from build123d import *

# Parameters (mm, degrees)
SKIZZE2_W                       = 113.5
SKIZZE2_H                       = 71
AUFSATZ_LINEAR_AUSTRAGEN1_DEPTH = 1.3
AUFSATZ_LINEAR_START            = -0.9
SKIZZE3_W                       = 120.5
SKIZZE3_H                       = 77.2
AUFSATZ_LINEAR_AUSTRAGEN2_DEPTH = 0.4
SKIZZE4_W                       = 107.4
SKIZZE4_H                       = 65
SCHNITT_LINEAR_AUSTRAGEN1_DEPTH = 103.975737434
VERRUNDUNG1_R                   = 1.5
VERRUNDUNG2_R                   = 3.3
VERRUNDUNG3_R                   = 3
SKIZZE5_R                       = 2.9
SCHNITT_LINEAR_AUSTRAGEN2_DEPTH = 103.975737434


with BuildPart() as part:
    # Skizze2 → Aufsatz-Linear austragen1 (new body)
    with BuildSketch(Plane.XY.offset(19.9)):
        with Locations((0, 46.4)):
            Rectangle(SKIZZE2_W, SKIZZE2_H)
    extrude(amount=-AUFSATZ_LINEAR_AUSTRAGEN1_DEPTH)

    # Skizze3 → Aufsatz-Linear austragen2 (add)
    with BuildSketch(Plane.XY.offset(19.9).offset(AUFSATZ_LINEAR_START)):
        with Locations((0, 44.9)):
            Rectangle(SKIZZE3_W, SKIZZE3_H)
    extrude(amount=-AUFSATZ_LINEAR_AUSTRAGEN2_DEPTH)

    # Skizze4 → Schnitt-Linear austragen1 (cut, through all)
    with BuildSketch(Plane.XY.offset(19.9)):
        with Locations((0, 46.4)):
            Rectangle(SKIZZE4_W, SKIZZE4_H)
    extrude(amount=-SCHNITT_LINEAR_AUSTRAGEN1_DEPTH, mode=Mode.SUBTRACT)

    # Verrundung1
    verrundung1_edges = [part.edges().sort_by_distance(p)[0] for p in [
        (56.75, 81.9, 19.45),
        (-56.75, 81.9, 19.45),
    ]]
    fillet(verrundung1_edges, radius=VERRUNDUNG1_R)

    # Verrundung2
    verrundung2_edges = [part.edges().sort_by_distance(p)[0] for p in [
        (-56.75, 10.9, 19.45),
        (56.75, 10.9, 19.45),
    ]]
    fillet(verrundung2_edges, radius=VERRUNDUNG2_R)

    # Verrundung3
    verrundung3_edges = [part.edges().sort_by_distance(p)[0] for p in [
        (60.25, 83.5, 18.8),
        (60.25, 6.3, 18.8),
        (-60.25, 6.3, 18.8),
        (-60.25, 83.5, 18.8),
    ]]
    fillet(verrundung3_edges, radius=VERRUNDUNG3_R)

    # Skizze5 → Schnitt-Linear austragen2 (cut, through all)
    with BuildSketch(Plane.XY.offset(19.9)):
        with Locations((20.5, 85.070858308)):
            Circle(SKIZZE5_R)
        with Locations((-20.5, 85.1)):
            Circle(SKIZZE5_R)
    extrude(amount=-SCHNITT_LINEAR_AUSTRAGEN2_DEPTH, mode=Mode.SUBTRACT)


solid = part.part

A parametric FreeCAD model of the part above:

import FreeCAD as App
import Part
import Sketcher
from FreeCAD import Vector


def edges_at(feature, points):
    """Names of the edges that pass closest to the given points."""
    edges = feature.Shape.Edges
    near = lambda p: min(range(len(edges)), key=lambda i: edges[i].distToShape(Part.Vertex(*p))[0])
    return sorted({f"Edge{near(p) + 1}" for p in points})

doc = App.newDocument("Part")
body = doc.addObject("PartDesign::Body", "Body")

# Sketch on XY plane
sketch1 = body.newObject("Sketcher::SketchObject", "Sketch")
sketch1.AttachmentSupport = (doc.getObject("XY_Plane"), [""])
sketch1.MapMode = "FlatFace"
sketch1.AttachmentOffset = App.Placement(Vector(0, 0, 19.9), App.Rotation())
sketch1.addGeometry([
    Part.LineSegment(Vector(-57, 82, 0), Vector(-57, 11, 0)),
    Part.LineSegment(Vector(-57, 11, 0), Vector(57, 11, 0)),
    Part.LineSegment(Vector(57, 11, 0), Vector(57, 82, 0)),
    Part.LineSegment(Vector(57, 82, 0), Vector(-57, 82, 0)),
], False)
sketch1.addConstraint([
    Sketcher.Constraint("Coincident", 0, 2, 1, 1),
    Sketcher.Constraint("Coincident", 1, 2, 2, 1),
    Sketcher.Constraint("Coincident", 2, 2, 3, 1),
    Sketcher.Constraint("Coincident", 3, 2, 0, 1),
    Sketcher.Constraint("Vertical", 0),
    Sketcher.Constraint("Horizontal", 1),
    Sketcher.Constraint("Vertical", 2),
    Sketcher.Constraint("Horizontal", 3),
    Sketcher.Constraint("DistanceY", 0, 2, 0, 1, 71.0),
    Sketcher.Constraint("DistanceX", 1, 1, 1, 2, 113.5),
    Sketcher.Constraint("DistanceY", -1, 1, 0, 2, 10.9),
    Sketcher.Constraint("DistanceX", 0, 2, -1, 1, 56.75),
])
pad1 = body.newObject("PartDesign::Pad", "Pad")
pad1.Profile = sketch1
pad1.Length = 1.3
pad1.Reversed = True

# Sketch on XY plane
sketch2 = body.newObject("Sketcher::SketchObject", "Sketch001")
sketch2.AttachmentSupport = (doc.getObject("XY_Plane"), [""])
sketch2.MapMode = "FlatFace"
sketch2.AttachmentOffset = App.Placement(Vector(0, 0, 19), App.Rotation())
sketch2.addGeometry([
    Part.LineSegment(Vector(-60, 84, 0), Vector(-60, 6, 0)),
    Part.LineSegment(Vector(-60, 6, 0), Vector(60, 6, 0)),
    Part.LineSegment(Vector(60, 6, 0), Vector(60, 84, 0)),
    Part.LineSegment(Vector(60, 84, 0), Vector(-60, 84, 0)),
], False)
sketch2.addConstraint([
    Sketcher.Constraint("Coincident", 0, 2, 1, 1),
    Sketcher.Constraint("Coincident", 1, 2, 2, 1),
    Sketcher.Constraint("Coincident", 2, 2, 3, 1),
    Sketcher.Constraint("Coincident", 3, 2, 0, 1),
    Sketcher.Constraint("Vertical", 0),
    Sketcher.Constraint("Horizontal", 1),
    Sketcher.Constraint("Vertical", 2),
    Sketcher.Constraint("Horizontal", 3),
    Sketcher.Constraint("DistanceX", 1, 1, 1, 2, 120.5),
    Sketcher.Constraint("DistanceY", 0, 2, 0, 1, 77.2),
    Sketcher.Constraint("DistanceY", -1, 1, 0, 2, 6.3),
    Sketcher.Constraint("DistanceX", 0, 2, -1, 1, 60.25),
])
pad2 = body.newObject("PartDesign::Pad", "Pad001")
pad2.Profile = sketch2
pad2.Length = 0.4
pad2.Reversed = True

# Sketch on XY plane
sketch3 = body.newObject("Sketcher::SketchObject", "Sketch002")
sketch3.AttachmentSupport = (doc.getObject("XY_Plane"), [""])
sketch3.MapMode = "FlatFace"
sketch3.AttachmentOffset = App.Placement(Vector(0, 0, 19.9), App.Rotation())
sketch3.addGeometry([
    Part.LineSegment(Vector(-54, 79, 0), Vector(-54, 14, 0)),
    Part.LineSegment(Vector(-54, 14, 0), Vector(54, 14, 0)),
    Part.LineSegment(Vector(54, 14, 0), Vector(54, 79, 0)),
    Part.LineSegment(Vector(54, 79, 0), Vector(-54, 79, 0)),
], False)
sketch3.addConstraint([
    Sketcher.Constraint("Coincident", 0, 2, 1, 1),
    Sketcher.Constraint("Coincident", 1, 2, 2, 1),
    Sketcher.Constraint("Coincident", 2, 2, 3, 1),
    Sketcher.Constraint("Coincident", 3, 2, 0, 1),
    Sketcher.Constraint("Vertical", 0),
    Sketcher.Constraint("Horizontal", 1),
    Sketcher.Constraint("Vertical", 2),
    Sketcher.Constraint("Horizontal", 3),
    Sketcher.Constraint("DistanceY", 0, 2, 0, 1, 65.0),
    Sketcher.Constraint("DistanceX", 1, 1, 1, 2, 107.4),
    Sketcher.Constraint("DistanceX", 0, 2, -1, 1, 53.7),
    Sketcher.Constraint("DistanceY", -1, 1, 0, 2, 13.9),
])
pocket1 = body.newObject("PartDesign::Pocket", "Pocket")
pocket1.Profile = sketch3
pocket1.Type = "ThroughAll"
doc.recompute()

fillet = body.newObject("PartDesign::Fillet", "Fillet")
fillet.Base = (pocket1, edges_at(pocket1, [(56.75, 81.9, 19.45), (-56.75, 81.9, 19.45)]))
fillet.Radius = 1.5
doc.recompute()

fillet2 = body.newObject("PartDesign::Fillet", "Fillet001")
fillet2.Base = (fillet, edges_at(fillet, [(-56.75, 10.9, 19.45), (56.75, 10.9, 19.45)]))
fillet2.Radius = 3.3
doc.recompute()

fillet3 = body.newObject("PartDesign::Fillet", "Fillet002")
fillet3.Base = (fillet2, edges_at(fillet2, [
    (60.25, 83.5, 18.8),
    (60.25, 6.3, 18.8),
    (-60.25, 6.3, 18.8),
    (-60.25, 83.5, 18.8),
]))
fillet3.Radius = 3

# Sketch on XY plane
sketch4 = body.newObject("Sketcher::SketchObject", "Sketch003")
sketch4.AttachmentSupport = (doc.getObject("XY_Plane"), [""])
sketch4.MapMode = "FlatFace"
sketch4.AttachmentOffset = App.Placement(Vector(0, 0, 19.9), App.Rotation())
sketch4.addGeometry([
    Part.Circle(Vector(20.5, 85.1, 0), Vector(0, 0, 1), 2.9),
    Part.Circle(Vector(-20.5, 85.1, 0), Vector(0, 0, 1), 2.9),
], False)
sketch4.addConstraint([
    Sketcher.Constraint("Equal", 0, 1),
    Sketcher.Constraint("Diameter", 0, 5.8),
    Sketcher.Constraint("DistanceX", 1, 3, 0, 3, 41.0),
    Sketcher.Constraint("DistanceX", -1, 1, 0, 3, 20.5),
    Sketcher.Constraint("DistanceY", -1, 1, 1, 3, 85.1),
    Sketcher.Constraint("DistanceY", -1, 1, 0, 3, 85.070858),
])
pocket2 = body.newObject("PartDesign::Pocket", "Pocket001")
pocket2.Profile = sketch4
pocket2.Type = "ThroughAll"

doc.recompute()
